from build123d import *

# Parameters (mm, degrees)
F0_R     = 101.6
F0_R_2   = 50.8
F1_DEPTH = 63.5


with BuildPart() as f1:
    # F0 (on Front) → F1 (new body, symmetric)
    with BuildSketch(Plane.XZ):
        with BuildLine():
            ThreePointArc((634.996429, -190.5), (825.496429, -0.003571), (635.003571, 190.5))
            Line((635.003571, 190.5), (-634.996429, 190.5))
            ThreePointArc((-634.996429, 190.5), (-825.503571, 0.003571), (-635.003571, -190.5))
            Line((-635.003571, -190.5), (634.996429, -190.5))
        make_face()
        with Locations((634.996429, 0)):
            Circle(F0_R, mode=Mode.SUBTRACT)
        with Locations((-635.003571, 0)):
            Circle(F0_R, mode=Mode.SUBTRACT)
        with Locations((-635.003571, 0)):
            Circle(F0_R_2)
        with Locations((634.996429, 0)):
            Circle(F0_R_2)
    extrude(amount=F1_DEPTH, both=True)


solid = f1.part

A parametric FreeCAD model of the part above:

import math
import FreeCAD as App
import Part
import Sketcher
Q = App.Units.Quantity

doc = App.newDocument("Part")
body = doc.addObject("PartDesign::Body", "Body")
body.AllowCompound = True

# Sketch on XZ plane
sketch1 = body.newObject("Sketcher::SketchObject", "Sketch")
sketch1.AttachmentSupport = (doc.getObject("XZ_Plane"), [""])
sketch1.MapMode = "FlatFace"
sketch1.addGeometry(Part.ArcOfCircle(Part.Circle(App.Vector(635, 0, 0), App.Vector(0, 0, 1), 191), math.radians(-90), math.radians(90)), False)
sketch1.addGeometry(Part.LineSegment(App.Vector(635, 190, 0), App.Vector(-635, 190, 0)), False)
sketch1.addGeometry(Part.ArcOfCircle(Part.Circle(App.Vector(-635, 0, 0), App.Vector(0, 0, 1), 191), math.radians(90), math.radians(270)), False)
sketch1.addGeometry(Part.LineSegment(App.Vector(-635, -190, 0), App.Vector(635, -190, 0)), False)
sketch1.addGeometry(Part.Circle(App.Vector(-635, 0, 0), App.Vector(0, 0, 1), 102), False)
sketch1.addGeometry(Part.Circle(App.Vector(635, 0, 0), App.Vector(0, 0, 1), 102), False)
sketch1.addGeometry(Part.Circle(App.Vector(-635, 0, 0), App.Vector(0, 0, 1), 51), False)
sketch1.addGeometry(Part.Circle(App.Vector(635, 0, 0), App.Vector(0, 0, 1), 51), False)
sketch1.addConstraint(Sketcher.Constraint("Coincident", 0, 2, 1, 1))
sketch1.addConstraint(Sketcher.Constraint("Coincident", 1, 2, 2, 1))
sketch1.addConstraint(Sketcher.Constraint("Tangent", 2, 2, 3, 1))
sketch1.addConstraint(Sketcher.Constraint("Tangent", 3, 2, 0, 1))
sketch1.addConstraint(Sketcher.Constraint("Horizontal", 1))
sketch1.addConstraint(Sketcher.Constraint("Horizontal", 3))
sketch1.addConstraint(Sketcher.Constraint("Coincident", 4, 3, 2, 3))
sketch1.addConstraint(Sketcher.Constraint("Coincident", 5, 3, 0, 3))
sketch1.addConstraint(Sketcher.Constraint("Coincident", 6, 3, 2, 3))
sketch1.addConstraint(Sketcher.Constraint("Coincident", 7, 3, 0, 3))
sketch1.addConstraint(Sketcher.Constraint("Equal", 4, 5))
sketch1.addConstraint(Sketcher.Constraint("Equal", 6, 7))
sketch1.addConstraint(Sketcher.Constraint("Symmetric", 0, 2, 2, 2, -1, 1))
sketch1.addConstraint(Sketcher.Constraint("Equal", 1, 3))
sketch1.addConstraint(Sketcher.Constraint("Diameter", 4, Q("8 in")))
sketch1.addConstraint(Sketcher.Constraint("Diameter", 6, Q("4 in")))
sketch1.addConstraint(Sketcher.Constraint("Radius", 0, Q("7.5 in")))
sketch1.addConstraint(Sketcher.Constraint("DistanceX", 1, 2, 1, 1, Q("50 in")))
sketch1.addConstraint(Sketcher.Constraint("DistanceX", -1, 1, 0, 3, Q("634.996429 mm")))
pad1 = body.newObject("PartDesign::Pad", "Pad")
pad1.Profile = sketch1
pad1.Length = Q("5 in")
pad1.Midplane = True

doc.recompute()
